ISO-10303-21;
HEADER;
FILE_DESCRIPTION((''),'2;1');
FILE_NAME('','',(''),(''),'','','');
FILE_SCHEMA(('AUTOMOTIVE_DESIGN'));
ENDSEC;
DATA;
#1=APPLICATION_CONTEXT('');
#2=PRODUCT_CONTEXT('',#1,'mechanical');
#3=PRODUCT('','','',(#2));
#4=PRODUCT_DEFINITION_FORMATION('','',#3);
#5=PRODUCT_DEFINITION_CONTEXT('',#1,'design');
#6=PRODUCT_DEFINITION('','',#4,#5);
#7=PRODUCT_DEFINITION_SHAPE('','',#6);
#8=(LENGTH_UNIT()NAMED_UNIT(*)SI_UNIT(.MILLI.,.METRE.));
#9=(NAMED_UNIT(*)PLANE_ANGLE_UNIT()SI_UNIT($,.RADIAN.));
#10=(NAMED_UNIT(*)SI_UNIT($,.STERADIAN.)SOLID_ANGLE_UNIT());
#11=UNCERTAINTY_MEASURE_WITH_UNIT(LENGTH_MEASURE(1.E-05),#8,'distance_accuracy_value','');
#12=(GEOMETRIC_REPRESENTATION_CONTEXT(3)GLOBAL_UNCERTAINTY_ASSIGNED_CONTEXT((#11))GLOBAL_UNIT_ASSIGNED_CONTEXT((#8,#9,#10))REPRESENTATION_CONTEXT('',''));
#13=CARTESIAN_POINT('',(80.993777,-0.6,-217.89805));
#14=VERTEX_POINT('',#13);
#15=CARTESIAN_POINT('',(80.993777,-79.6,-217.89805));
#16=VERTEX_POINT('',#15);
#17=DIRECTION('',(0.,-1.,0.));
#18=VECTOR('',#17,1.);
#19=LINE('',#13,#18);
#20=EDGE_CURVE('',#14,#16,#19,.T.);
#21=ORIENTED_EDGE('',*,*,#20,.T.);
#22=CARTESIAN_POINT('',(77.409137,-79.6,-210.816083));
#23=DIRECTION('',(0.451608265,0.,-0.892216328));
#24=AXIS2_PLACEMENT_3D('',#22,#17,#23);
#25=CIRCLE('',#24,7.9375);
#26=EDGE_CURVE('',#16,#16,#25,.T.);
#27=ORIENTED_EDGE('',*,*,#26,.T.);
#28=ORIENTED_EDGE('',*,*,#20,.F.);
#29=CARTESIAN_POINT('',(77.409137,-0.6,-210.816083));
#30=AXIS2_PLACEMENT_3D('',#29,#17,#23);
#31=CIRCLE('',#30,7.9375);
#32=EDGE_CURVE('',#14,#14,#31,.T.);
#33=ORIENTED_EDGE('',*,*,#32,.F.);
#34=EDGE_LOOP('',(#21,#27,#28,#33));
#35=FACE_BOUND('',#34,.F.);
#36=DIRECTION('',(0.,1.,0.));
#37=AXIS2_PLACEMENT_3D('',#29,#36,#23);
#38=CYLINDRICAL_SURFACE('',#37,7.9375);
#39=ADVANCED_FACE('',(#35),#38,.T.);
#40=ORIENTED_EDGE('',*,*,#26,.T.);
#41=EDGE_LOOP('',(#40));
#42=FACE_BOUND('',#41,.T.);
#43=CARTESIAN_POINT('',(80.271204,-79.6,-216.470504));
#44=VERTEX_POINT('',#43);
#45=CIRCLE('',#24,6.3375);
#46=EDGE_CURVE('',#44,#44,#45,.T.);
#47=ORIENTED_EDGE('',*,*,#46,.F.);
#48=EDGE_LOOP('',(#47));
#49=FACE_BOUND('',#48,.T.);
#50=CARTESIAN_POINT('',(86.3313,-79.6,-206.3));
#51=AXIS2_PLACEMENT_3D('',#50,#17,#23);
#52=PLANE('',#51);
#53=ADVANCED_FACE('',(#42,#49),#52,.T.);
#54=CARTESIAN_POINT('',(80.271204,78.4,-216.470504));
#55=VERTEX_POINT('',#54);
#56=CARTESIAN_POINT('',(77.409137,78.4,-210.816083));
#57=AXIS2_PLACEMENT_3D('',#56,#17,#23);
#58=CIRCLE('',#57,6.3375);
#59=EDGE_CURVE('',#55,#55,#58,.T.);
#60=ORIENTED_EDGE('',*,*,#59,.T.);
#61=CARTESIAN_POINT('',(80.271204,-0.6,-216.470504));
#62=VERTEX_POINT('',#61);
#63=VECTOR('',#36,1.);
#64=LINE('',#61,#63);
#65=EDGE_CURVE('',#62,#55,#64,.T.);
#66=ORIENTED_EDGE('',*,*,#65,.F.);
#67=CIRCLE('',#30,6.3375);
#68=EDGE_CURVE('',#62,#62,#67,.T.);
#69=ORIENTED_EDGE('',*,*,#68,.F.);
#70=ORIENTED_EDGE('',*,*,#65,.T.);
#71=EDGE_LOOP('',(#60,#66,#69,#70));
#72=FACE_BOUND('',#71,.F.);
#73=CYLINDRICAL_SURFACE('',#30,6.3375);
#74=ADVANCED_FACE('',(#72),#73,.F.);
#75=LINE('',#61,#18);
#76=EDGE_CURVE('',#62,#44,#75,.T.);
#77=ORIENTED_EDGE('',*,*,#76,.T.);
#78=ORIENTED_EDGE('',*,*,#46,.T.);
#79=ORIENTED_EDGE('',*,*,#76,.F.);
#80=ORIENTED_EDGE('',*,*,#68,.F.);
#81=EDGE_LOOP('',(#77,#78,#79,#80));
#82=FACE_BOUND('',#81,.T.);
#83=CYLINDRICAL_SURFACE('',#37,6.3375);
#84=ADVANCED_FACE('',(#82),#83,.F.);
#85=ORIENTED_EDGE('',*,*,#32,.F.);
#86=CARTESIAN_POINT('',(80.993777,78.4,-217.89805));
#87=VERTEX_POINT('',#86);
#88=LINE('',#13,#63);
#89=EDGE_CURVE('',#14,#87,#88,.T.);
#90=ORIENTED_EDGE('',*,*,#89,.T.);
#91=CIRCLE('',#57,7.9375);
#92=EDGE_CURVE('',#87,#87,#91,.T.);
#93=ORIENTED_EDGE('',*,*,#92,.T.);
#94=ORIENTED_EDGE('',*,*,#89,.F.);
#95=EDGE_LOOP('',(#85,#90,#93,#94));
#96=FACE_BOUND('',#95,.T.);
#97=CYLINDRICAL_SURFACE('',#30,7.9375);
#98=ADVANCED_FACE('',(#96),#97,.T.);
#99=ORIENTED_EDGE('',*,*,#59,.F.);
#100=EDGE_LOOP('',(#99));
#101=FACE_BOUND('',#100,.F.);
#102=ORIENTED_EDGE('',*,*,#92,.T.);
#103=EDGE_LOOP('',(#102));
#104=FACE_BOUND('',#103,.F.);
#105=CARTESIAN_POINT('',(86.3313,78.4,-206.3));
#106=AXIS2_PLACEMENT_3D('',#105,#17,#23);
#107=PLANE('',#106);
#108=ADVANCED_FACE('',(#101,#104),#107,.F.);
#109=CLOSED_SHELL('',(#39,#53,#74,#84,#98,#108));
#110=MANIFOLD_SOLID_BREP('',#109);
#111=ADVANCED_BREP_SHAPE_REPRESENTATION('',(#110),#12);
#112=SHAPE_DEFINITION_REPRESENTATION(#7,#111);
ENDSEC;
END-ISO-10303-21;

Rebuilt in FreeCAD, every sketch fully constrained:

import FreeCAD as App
import Part
import Sketcher
from FreeCAD import Vector
Q = App.Units.Quantity

doc = App.newDocument("Part")
body = doc.addObject("PartDesign::Body", "Body")

sketch1 = body.newObject("Sketcher::SketchObject", "Sketch")
sketch1.AttachmentSupport = (doc.getObject("XZ_Plane"), [""])
sketch1.MapMode = "FlatFace"
sketch1.AttachmentOffset = App.Placement(Vector(0, 0, 0.6), App.Rotation())
sketch1.addGeometry([
    Part.Circle(Vector(77, -211, 0), Vector(0, 0, 1), 8),
    Part.Circle(Vector(77, -211, 0), Vector(0, 0, 1), 6),
], False)
sketch1.addConstraint([
    Sketcher.Constraint("Coincident", 1, 3, 0, 3),
    Sketcher.Constraint("Diameter", 0, Q("15.875 mm")),
    Sketcher.Constraint("Diameter", 1, Q("12.675 mm")),
    Sketcher.Constraint("DistanceY", 0, 3, -1, 1, Q("210.816 mm")),
    Sketcher.Constraint("DistanceX", -1, 1, 0, 3, Q("77.4091 mm")),
])
pad1 = body.newObject("PartDesign::Pad", "Pad")
pad1.Profile = sketch1
pad1.Length = 158
pad1.Midplane = True

doc.recompute()
